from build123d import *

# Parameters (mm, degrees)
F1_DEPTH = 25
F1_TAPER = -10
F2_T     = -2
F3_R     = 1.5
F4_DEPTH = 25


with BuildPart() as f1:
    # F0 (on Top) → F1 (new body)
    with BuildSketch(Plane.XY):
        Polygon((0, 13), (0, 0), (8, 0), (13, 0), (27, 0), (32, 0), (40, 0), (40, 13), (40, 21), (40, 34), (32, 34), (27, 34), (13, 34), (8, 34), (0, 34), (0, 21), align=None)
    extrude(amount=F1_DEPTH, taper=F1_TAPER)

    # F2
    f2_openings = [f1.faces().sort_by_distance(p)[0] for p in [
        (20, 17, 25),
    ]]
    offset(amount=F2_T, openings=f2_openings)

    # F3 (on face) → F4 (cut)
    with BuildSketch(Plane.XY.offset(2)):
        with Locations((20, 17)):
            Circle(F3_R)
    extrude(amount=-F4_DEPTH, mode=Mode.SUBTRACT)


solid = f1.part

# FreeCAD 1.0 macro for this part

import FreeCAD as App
import Part
import Sketcher
from FreeCAD import Vector
Q = App.Units.Quantity


def faces_at(feature, points):
    """Names of the faces that lie closest to the given points."""
    faces = feature.Shape.Faces
    near = lambda p: min(range(len(faces)), key=lambda i: faces[i].distToShape(Part.Vertex(*p))[0])
    return sorted({f"Face{near(p) + 1}" for p in points})

doc = App.newDocument("Part")
body = doc.addObject("PartDesign::Body", "Body")

sketch1 = doc.addObject("Sketcher::SketchObject", "Sketch")
body.addObject(sketch1)
sketch1.AttachmentSupport = (doc.XY_Plane, [""])
sketch1.MapMode = "FlatFace"
sketch1.addGeometry([
    Part.LineSegment(Vector(0, 0, 0), Vector(40, 0, 0)),
    Part.LineSegment(Vector(40, 0, 0), Vector(40, 34, 0)),
    Part.LineSegment(Vector(40, 34, 0), Vector(0, 34, 0)),
    Part.LineSegment(Vector(0, 34, 0), Vector(0, 0, 0)),
], False)
sketch1.addConstraint([
    Sketcher.Constraint("Coincident", 0, 2, 1, 1),
    Sketcher.Constraint("Coincident", 1, 2, 2, 1),
    Sketcher.Constraint("Coincident", 2, 2, 3, 1),
    Sketcher.Constraint("Coincident", 3, 2, 0, 1),
    Sketcher.Constraint("Horizontal", 0),
    Sketcher.Constraint("Vertical", 1),
    Sketcher.Constraint("Horizontal", 2),
    Sketcher.Constraint("Vertical", 3),
    Sketcher.Constraint("Coincident", 3, 2, -1, 1),
    Sketcher.Constraint("DistanceX", 0, 1, 0, 2, Q("40 mm")),
    Sketcher.Constraint("DistanceY", 1, 1, 1, 2, Q("34 mm")),
])
pad1 = doc.addObject("PartDesign::Pad", "Pad")
body.addObject(pad1)
pad1.Profile = sketch1
pad1.Length = 25
pad1.TaperAngle = 10
doc.recompute()

thickness = doc.addObject("PartDesign::Thickness", "Thickness")
body.addObject(thickness)
thickness.Base = (pad1, faces_at(pad1, [(20, 17, 25)]))
thickness.Value = 2
thickness.Reversed = True
thickness.Join = "Arc"

sketch2 = doc.addObject("Sketcher::SketchObject", "Sketch001")
body.addObject(sketch2)
sketch2.AttachmentSupport = (doc.XY_Plane, [""])
sketch2.MapMode = "FlatFace"
sketch2.AttachmentOffset = App.Placement(Vector(0, 0, 2), App.Rotation())
sketch2.addGeometry(Part.Circle(Vector(20, 17, 0), Vector(0, 0, 1), 1.5), False)
sketch2.addConstraint([
    Sketcher.Constraint("Diameter", 0, Q("3 mm")),
    Sketcher.Constraint("DistanceX", -1, 1, 0, 3, Q("20 mm")),
    Sketcher.Constraint("DistanceY", -1, 1, 0, 3, Q("17 mm")),
])
pocket1 = doc.addObject("PartDesign::Pocket", "Pocket")
body.addObject(pocket1)
pocket1.Profile = sketch2
pocket1.Length = 25

doc.recompute()
